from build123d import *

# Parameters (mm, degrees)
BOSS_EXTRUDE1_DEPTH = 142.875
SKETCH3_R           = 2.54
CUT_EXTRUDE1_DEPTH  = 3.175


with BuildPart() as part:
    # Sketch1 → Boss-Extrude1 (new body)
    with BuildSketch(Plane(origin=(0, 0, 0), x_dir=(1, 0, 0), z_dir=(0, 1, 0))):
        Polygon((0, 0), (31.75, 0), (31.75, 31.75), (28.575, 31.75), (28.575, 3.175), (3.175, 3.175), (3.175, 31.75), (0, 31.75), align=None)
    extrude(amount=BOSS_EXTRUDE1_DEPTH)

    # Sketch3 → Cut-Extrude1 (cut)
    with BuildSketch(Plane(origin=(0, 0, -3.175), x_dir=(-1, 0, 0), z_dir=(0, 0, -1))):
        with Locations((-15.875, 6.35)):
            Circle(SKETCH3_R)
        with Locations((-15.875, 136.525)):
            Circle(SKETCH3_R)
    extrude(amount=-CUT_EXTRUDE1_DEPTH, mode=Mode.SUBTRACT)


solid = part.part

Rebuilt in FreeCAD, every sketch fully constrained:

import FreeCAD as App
import Part
import Sketcher

V = App.Vector
Q = App.Units.Quantity

doc = App.newDocument("Part")
body = doc.addObject("PartDesign::Body", "Body")

sketch1 = body.newObject("Sketcher::SketchObject", "Sketch")
sketch1.AttachmentSupport = (doc.getObject("XZ_Plane"), [""])
sketch1.MapMode = "FlatFace"
sketch1.addGeometry([
    Part.LineSegment(V(0, 0, 0), V(31.8, 0, 0)),
    Part.LineSegment(V(31.8, 0, 0), V(31.8, -31.8, 0)),
    Part.LineSegment(V(31.8, -31.8, 0), V(28.6, -31.8, 0)),
    Part.LineSegment(V(28.6, -31.8, 0), V(28.6, -3.2, 0)),
    Part.LineSegment(V(28.6, -3.2, 0), V(3.2, -3.2, 0)),
    Part.LineSegment(V(3.2, -3.2, 0), V(3.2, -31.8, 0)),
    Part.LineSegment(V(3.2, -31.8, 0), V(0, -31.8, 0)),
    Part.LineSegment(V(0, -31.8, 0), V(0, 0, 0)),
], False)
sketch1.addConstraint([
    Sketcher.Constraint("Coincident", 0, 2, 1, 1),
    Sketcher.Constraint("Coincident", 1, 2, 2, 1),
    Sketcher.Constraint("Coincident", 2, 2, 3, 1),
    Sketcher.Constraint("Coincident", 3, 2, 4, 1),
    Sketcher.Constraint("Coincident", 4, 2, 5, 1),
    Sketcher.Constraint("Coincident", 5, 2, 6, 1),
    Sketcher.Constraint("Coincident", 6, 2, 7, 1),
    Sketcher.Constraint("Coincident", 7, 2, 0, 1),
    Sketcher.Constraint("Horizontal", 0),
    Sketcher.Constraint("Vertical", 1),
    Sketcher.Constraint("Horizontal", 2),
    Sketcher.Constraint("Vertical", 3),
    Sketcher.Constraint("Horizontal", 4),
    Sketcher.Constraint("Vertical", 5),
    Sketcher.Constraint("Horizontal", 6),
    Sketcher.Constraint("Vertical", 7),
    Sketcher.Constraint("Coincident", 7, 2, -1, 1),
    Sketcher.Constraint("Horizontal", 2, 2, 5, 2),
    Sketcher.Constraint("Equal", 2, 6),
    Sketcher.Constraint("Equal", 0, 1),
    Sketcher.Constraint("DistanceX", 4, 2, 4, 1, Q("1 in")),
    Sketcher.Constraint("DistanceX", 0, 1, 0, 2, Q("1.25 in")),
    Sketcher.Constraint("DistanceY", 3, 1, 3, 2, Q("1.125 in")),
])
pad1 = body.newObject("PartDesign::Pad", "Pad")
pad1.Profile = sketch1
pad1.Length = Q("5.625 in")
pad1.Reversed = True

sketch2 = body.newObject("Sketcher::SketchObject", "Sketch001")
sketch2.AttachmentSupport = (doc.getObject("XY_Plane"), [""])
sketch2.MapMode = "FlatFace"
sketch2.AttachmentOffset = App.Placement(V(0, 0, -0.125 * 25.4), App.Rotation())
sketch2.addGeometry([
    Part.Circle(V(15.9, 6.3, 0), V(0, 0, 1), 2.5),
    Part.Circle(V(15.9, 136.5, 0), V(0, 0, 1), 2.5),
], False)
sketch2.addConstraint([
    Sketcher.Constraint("Equal", 0, 1),
    Sketcher.Constraint("Vertical", 0, 3, 1, 3),
    Sketcher.Constraint("Diameter", 0, Q("0.2 in")),
    Sketcher.Constraint("DistanceY", -1, 1, 0, 3, Q("0.25 in")),
    Sketcher.Constraint("DistanceX", -1, 1, 0, 3, Q("0.625 in")),
    Sketcher.Constraint("DistanceY", -1, 1, 1, 3, Q("5.375 in")),
])
pocket1 = body.newObject("PartDesign::Pocket", "Pocket")
pocket1.Profile = sketch2
pocket1.Length = Q("0.125 in")
pocket1.Reversed = True

doc.recompute()
